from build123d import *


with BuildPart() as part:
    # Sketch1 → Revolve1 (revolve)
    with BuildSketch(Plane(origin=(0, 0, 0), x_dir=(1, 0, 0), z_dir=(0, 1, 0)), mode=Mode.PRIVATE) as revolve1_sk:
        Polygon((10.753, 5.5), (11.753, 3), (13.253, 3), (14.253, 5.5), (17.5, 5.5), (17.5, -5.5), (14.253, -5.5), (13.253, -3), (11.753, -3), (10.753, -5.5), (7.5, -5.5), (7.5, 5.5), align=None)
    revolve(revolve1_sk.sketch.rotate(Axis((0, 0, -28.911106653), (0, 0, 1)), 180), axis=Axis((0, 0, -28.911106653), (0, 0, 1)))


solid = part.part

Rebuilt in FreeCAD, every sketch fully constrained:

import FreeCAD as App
import Part
import Sketcher
from FreeCAD import Vector
Q = App.Units.Quantity


def add_polygon(sketch, points):
    """Adds a closed chain of lines whose ends are joined by coincident constraints."""
    first, n = sketch.GeometryCount, len(points)
    for a, b in zip(points, points[1:] + points[:1]):
        sketch.addGeometry(Part.LineSegment(App.Vector(*a, 0), App.Vector(*b, 0)), False)
    for i in range(n):
        sketch.addConstraint(Sketcher.Constraint("Coincident", first + i, 2, first + (i + 1) % n, 1))

doc = App.newDocument("Part")
params = doc.addObject("Spreadsheet::Sheet", "Params")
for row, (alias, value) in enumerate([
    ("sketch1_height", "11 mm"),
    ("sketch1_width", "1.5 mm"),
    ("revolution_angle", "360 deg"),
], start=1):
    params.set(f"A{row}", alias)
    params.set(f"B{row}", "=" + value)
    params.setAlias(f"B{row}", alias)

body = doc.addObject("PartDesign::Body", "Body")

sketch1 = body.newObject("Sketcher::SketchObject", "Sketch")
sketch1.AttachmentSupport = (doc.getObject("XZ_Plane"), [""])
sketch1.MapMode = "FlatFace"
add_polygon(sketch1, [(11.8, -3), (10.8, -5.5), (7.5, -5.5), (7.5, 5.5), (10.8, 5.5), (11.8, 3), (13.3, 3), (14.3, 5.5), (17.5, 5.5), (17.5, -5.5), (14.3, -5.5), (13.3, -3)])
sketch1.addConstraint(Sketcher.Constraint("Horizontal", 1))
sketch1.addConstraint(Sketcher.Constraint("Vertical", 2))
sketch1.addConstraint(Sketcher.Constraint("Horizontal", 3))
sketch1.addConstraint(Sketcher.Constraint("Horizontal", 5))
sketch1.addConstraint(Sketcher.Constraint("Horizontal", 7))
sketch1.addConstraint(Sketcher.Constraint("Vertical", 8))
sketch1.addConstraint(Sketcher.Constraint("Horizontal", 9))
sketch1.addConstraint(Sketcher.Constraint("Horizontal", 11))
sketch1.addConstraint(Sketcher.Constraint("Symmetric", 0, 2, 3, 2, -1))
sketch1.addConstraint(Sketcher.Constraint("Symmetric", 6, 2, 9, 2, -1))
sketch1.addConstraint(Sketcher.Constraint("Symmetric", 5, 2, 10, 2, -1))
sketch1.addConstraint(Sketcher.Constraint("Parallel", 0, 6))
sketch1.addConstraint(Sketcher.Constraint("Parallel", 4, 10))
sketch1.addConstraint(Sketcher.Constraint("Horizontal", 3, 2, 6, 2))
sketch1.addConstraint(Sketcher.Constraint("DistanceY", 2, 1, 2, 2, Q("11 mm")))
sketch1.addConstraint(Sketcher.Constraint("DistanceX", 5, 1, 5, 2, Q("1.5 mm")))
sketch1.addConstraint(Sketcher.Constraint("DistanceY", -1, 1, 4, 2, Q("3 mm")))
sketch1.addConstraint(Sketcher.Constraint("DistanceX", 3, 2, 4, 2, Q("1 mm")))
sketch1.addConstraint(Sketcher.Constraint("DistanceX", 2, 2, 7, 2, Q("10 mm")))
sketch1.addConstraint(Sketcher.Constraint("DistanceX", -1, 1, 1, 2, Q("7.5 mm")))
sketch1.addConstraint(Sketcher.Constraint("DistanceX", 1, 2, 1, 1, Q("3.253 mm")))
sketch1.setExpression("Constraints[26]", "Params.sketch1_height")
sketch1.setExpression("Constraints[27]", "Params.sketch1_width")
revolution = body.newObject("PartDesign::Revolution", "Revolution")
revolution.Profile = sketch1
revolution.ReferenceAxis = (sketch1, ["V_Axis"])
revolution.setExpression("Angle", "Params.revolution_angle")

doc.recompute()
